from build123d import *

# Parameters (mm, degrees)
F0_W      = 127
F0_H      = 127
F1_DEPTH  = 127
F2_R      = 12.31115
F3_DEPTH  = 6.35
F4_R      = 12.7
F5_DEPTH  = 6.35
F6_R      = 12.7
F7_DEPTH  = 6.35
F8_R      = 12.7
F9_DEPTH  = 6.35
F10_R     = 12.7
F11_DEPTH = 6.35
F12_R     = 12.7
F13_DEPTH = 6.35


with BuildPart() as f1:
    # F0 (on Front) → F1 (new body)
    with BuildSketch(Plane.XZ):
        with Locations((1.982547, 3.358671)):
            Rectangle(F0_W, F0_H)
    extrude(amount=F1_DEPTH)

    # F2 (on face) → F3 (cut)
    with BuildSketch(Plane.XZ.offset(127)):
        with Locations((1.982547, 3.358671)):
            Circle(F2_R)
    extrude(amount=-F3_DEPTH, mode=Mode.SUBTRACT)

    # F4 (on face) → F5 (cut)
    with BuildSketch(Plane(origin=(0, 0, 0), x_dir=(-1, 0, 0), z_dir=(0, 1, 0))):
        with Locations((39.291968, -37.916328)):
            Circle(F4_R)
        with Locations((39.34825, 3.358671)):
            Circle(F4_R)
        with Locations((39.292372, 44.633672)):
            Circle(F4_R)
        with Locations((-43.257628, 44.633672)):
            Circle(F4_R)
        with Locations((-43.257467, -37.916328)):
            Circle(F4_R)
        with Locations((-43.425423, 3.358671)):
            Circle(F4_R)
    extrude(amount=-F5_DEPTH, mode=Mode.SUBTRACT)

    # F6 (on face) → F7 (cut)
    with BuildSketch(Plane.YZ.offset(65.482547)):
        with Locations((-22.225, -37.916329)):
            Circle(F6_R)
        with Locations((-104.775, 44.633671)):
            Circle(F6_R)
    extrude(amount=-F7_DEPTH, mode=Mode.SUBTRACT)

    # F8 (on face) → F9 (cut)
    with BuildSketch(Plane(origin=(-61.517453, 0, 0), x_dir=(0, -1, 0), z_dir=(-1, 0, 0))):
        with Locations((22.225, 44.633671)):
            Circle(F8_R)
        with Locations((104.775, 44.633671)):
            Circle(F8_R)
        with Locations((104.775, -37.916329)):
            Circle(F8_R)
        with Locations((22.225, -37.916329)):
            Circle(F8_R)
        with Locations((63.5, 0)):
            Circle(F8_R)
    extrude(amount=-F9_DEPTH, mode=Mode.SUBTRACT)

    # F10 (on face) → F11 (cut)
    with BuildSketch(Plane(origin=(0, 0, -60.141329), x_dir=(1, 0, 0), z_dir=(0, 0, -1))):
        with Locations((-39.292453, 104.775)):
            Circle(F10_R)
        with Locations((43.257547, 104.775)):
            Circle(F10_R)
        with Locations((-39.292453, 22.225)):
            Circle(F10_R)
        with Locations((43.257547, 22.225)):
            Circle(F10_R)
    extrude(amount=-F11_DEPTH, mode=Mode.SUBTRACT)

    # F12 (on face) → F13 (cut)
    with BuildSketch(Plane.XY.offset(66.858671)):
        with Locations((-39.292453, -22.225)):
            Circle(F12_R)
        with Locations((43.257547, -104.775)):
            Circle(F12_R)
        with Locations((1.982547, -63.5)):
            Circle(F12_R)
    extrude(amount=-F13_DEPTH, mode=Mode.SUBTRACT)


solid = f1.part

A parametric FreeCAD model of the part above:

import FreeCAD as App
import Part
import Sketcher
from FreeCAD import Vector
Q = App.Units.Quantity

doc = App.newDocument("Part")
body = doc.addObject("PartDesign::Body", "Body")

# Sketch on XZ plane
sketch1 = doc.addObject("Sketcher::SketchObject", "Sketch")
body.addObject(sketch1)
sketch1.AttachmentSupport = (doc.XZ_Plane, [""])
sketch1.MapMode = "FlatFace"
sketch1.addGeometry(Part.LineSegment(Vector(-61.517453, 66.858671, 0), Vector(-61.517453, -60.141329, 0)), False)
sketch1.addGeometry(Part.LineSegment(Vector(-61.517453, -60.141329, 0), Vector(65.482547, -60.141329, 0)), False)
sketch1.addGeometry(Part.LineSegment(Vector(65.482547, -60.141329, 0), Vector(65.482547, 66.858671, 0)), False)
sketch1.addGeometry(Part.LineSegment(Vector(65.482547, 66.858671, 0), Vector(-61.517453, 66.858671, 0)), False)
sketch1.addConstraint(Sketcher.Constraint("Coincident", 0, 2, 1, 1))
sketch1.addConstraint(Sketcher.Constraint("Coincident", 1, 2, 2, 1))
sketch1.addConstraint(Sketcher.Constraint("Coincident", 2, 2, 3, 1))
sketch1.addConstraint(Sketcher.Constraint("Coincident", 3, 2, 0, 1))
sketch1.addConstraint(Sketcher.Constraint("Vertical", 0))
sketch1.addConstraint(Sketcher.Constraint("Horizontal", 1))
sketch1.addConstraint(Sketcher.Constraint("Vertical", 2))
sketch1.addConstraint(Sketcher.Constraint("Horizontal", 3))
sketch1.addConstraint(Sketcher.Constraint("Equal", 3, 0))
sketch1.addConstraint(Sketcher.Constraint("DistanceX", 1, 1, 1, 2, Q("5 in")))
sketch1.addConstraint(Sketcher.Constraint("DistanceY", 0, 2, -1, 1, Q("60.141329 mm")))
sketch1.addConstraint(Sketcher.Constraint("DistanceX", 0, 2, -1, 1, Q("61.517453 mm")))
pad1 = doc.addObject("PartDesign::Pad", "Pad")
body.addObject(pad1)
pad1.Profile = sketch1
pad1.Length = Q("5 in")

# Sketch on XZ plane
sketch2 = doc.addObject("Sketcher::SketchObject", "Sketch001")
body.addObject(sketch2)
sketch2.AttachmentSupport = (doc.XZ_Plane, [""])
sketch2.MapMode = "FlatFace"
sketch2.AttachmentOffset = App.Placement(Vector(0, 0, 5 * 25.4), App.Rotation())
sketch2.addGeometry(Part.Circle(Vector(1.982547, 3.358671, 0), Vector(0, 0, 1), 12.31115), False)
sketch2.addConstraint(Sketcher.Constraint("Diameter", 0, Q("24.6223 mm")))
sketch2.addConstraint(Sketcher.Constraint("DistanceY", -1, 1, 0, 3, Q("3.358671 mm")))
sketch2.addConstraint(Sketcher.Constraint("DistanceX", -1, 1, 0, 3, Q("1.982547 mm")))
pocket1 = doc.addObject("PartDesign::Pocket", "Pocket")
body.addObject(pocket1)
pocket1.Profile = sketch2
pocket1.Length = Q("0.25 in")

# Sketch on XZ plane
sketch3 = doc.addObject("Sketcher::SketchObject", "Sketch002")
body.addObject(sketch3)
sketch3.AttachmentSupport = (doc.XZ_Plane, [""])
sketch3.MapMode = "FlatFace"
sketch3.addGeometry(Part.Circle(Vector(-39.291968, -37.916328, 0), Vector(0, 0, 1), 12.7), False)
sketch3.addGeometry(Part.Circle(Vector(-39.34825, 3.358671, 0), Vector(0, 0, 1), 12.7), False)
sketch3.addGeometry(Part.Circle(Vector(-39.292372, 44.633672, 0), Vector(0, 0, 1), 12.7), False)
sketch3.addGeometry(Part.Circle(Vector(43.257628, 44.633672, 0), Vector(0, 0, 1), 12.7), False)
sketch3.addGeometry(Part.Circle(Vector(43.257467, -37.916328, 0), Vector(0, 0, 1), 12.7), False)
sketch3.addGeometry(Part.Circle(Vector(43.425423, 3.358671, 0), Vector(0, 0, 1), 12.7), False)
sketch3.addConstraint(Sketcher.Constraint("Equal", 0, 1))
sketch3.addConstraint(Sketcher.Constraint("Equal", 1, 2))
sketch3.addConstraint(Sketcher.Constraint("Equal", 2, 3))
sketch3.addConstraint(Sketcher.Constraint("Equal", 3, 4))
sketch3.addConstraint(Sketcher.Constraint("Equal", 4, 5))
sketch3.addConstraint(Sketcher.Constraint("Horizontal", 2, 3, 3, 3))
sketch3.addConstraint(Sketcher.Constraint("Horizontal", 0, 3, 4, 3))
sketch3.addConstraint(Sketcher.Constraint("Horizontal", 1, 3, 5, 3))
sketch3.addConstraint(Sketcher.Constraint("Diameter", 0, Q("1 in")))
sketch3.addConstraint(Sketcher.Constraint("DistanceY", 0, 3, 2, 3, Q("3.25 in")))
sketch3.addConstraint(Sketcher.Constraint("DistanceX", 2, 3, 3, 3, Q("3.25 in")))
sketch3.addConstraint(Sketcher.Constraint("DistanceY", 0, 3, 1, 3, Q("1.625 in")))
sketch3.addConstraint(Sketcher.Constraint("DistanceX", 1, 3, 2, 3, Q("0.0021999 in")))
sketch3.addConstraint(Sketcher.Constraint("DistanceX", 1, 3, -1, 1, Q("39.34825 mm")))
sketch3.addConstraint(Sketcher.Constraint("DistanceY", -1, 1, 1, 3, Q("3.358671 mm")))
sketch3.addConstraint(Sketcher.Constraint("DistanceX", 4, 3, 3, 3, Q("0.000161 mm")))
sketch3.addConstraint(Sketcher.Constraint("DistanceX", 0, 3, 5, 3, Q("82.717391 mm")))
sketch3.addConstraint(Sketcher.Constraint("DistanceX", 0, 3, -1, 1, Q("39.291968 mm")))
pocket2 = doc.addObject("PartDesign::Pocket", "Pocket001")
body.addObject(pocket2)
pocket2.Profile = sketch3
pocket2.Length = Q("0.25 in")
pocket2.Reversed = True

# Sketch on YZ plane
sketch4 = doc.addObject("Sketcher::SketchObject", "Sketch003")
body.addObject(sketch4)
sketch4.AttachmentSupport = (doc.YZ_Plane, [""])
sketch4.MapMode = "FlatFace"
sketch4.AttachmentOffset = App.Placement(Vector(0, 0, 65.482547), App.Rotation())
sketch4.addGeometry(Part.Circle(Vector(-22.225, -37.916329, 0), Vector(0, 0, 1), 12.7), False)
sketch4.addGeometry(Part.Circle(Vector(-104.775, 44.633671, 0), Vector(0, 0, 1), 12.7), False)
sketch4.addConstraint(Sketcher.Constraint("Equal", 0, 1))
sketch4.addConstraint(Sketcher.Constraint("Diameter", 0, Q("1 in")))
sketch4.addConstraint(Sketcher.Constraint("DistanceX", 1, 3, 0, 3, Q("3.25 in")))
sketch4.addConstraint(Sketcher.Constraint("DistanceY", 0, 3, 1, 3, Q("3.25 in")))
sketch4.addConstraint(Sketcher.Constraint("DistanceX", 0, 3, -1, 1, Q("0.875 in")))
sketch4.addConstraint(Sketcher.Constraint("DistanceY", 0, 3, -1, 1, Q("37.916329 mm")))
pocket3 = doc.addObject("PartDesign::Pocket", "Pocket002")
body.addObject(pocket3)
pocket3.Profile = sketch4
pocket3.Length = Q("0.25 in")

# Sketch on YZ plane
sketch5 = doc.addObject("Sketcher::SketchObject", "Sketch004")
body.addObject(sketch5)
sketch5.AttachmentSupport = (doc.YZ_Plane, [""])
sketch5.MapMode = "FlatFace"
sketch5.AttachmentOffset = App.Placement(Vector(0, 0, -61.517453), App.Rotation())
sketch5.addGeometry(Part.Circle(Vector(-22.225, 44.633671, 0), Vector(0, 0, 1), 12.7), False)
sketch5.addGeometry(Part.Circle(Vector(-104.775, 44.633671, 0), Vector(0, 0, 1), 12.7), False)
sketch5.addGeometry(Part.Circle(Vector(-104.775, -37.916329, 0), Vector(0, 0, 1), 12.7), False)
sketch5.addGeometry(Part.Circle(Vector(-22.225, -37.916329, 0), Vector(0, 0, 1), 12.7), False)
sketch5.addGeometry(Part.Circle(Vector(-63.5, 0, 0), Vector(0, 0, 1), 12.7), False)
sketch5.addConstraint(Sketcher.Constraint("Equal", 0, 1))
sketch5.addConstraint(Sketcher.Constraint("Equal", 1, 2))
sketch5.addConstraint(Sketcher.Constraint("Equal", 2, 3))
sketch5.addConstraint(Sketcher.Constraint("Equal", 3, 4))
sketch5.addConstraint(Sketcher.Constraint("PointOnObject", 4, 3, -1))
sketch5.addConstraint(Sketcher.Constraint("Horizontal", 0, 3, 1, 3))
sketch5.addConstraint(Sketcher.Constraint("Horizontal", 2, 3, 3, 3))
sketch5.addConstraint(Sketcher.Constraint("Vertical", 1, 3, 2, 3))
sketch5.addConstraint(Sketcher.Constraint("Vertical", 0, 3, 3, 3))
sketch5.addConstraint(Sketcher.Constraint("Diameter", 0, Q("1 in")))
sketch5.addConstraint(Sketcher.Constraint("DistanceX", 4, 3, -1, 1, Q("2.5 in")))
sketch5.addConstraint(Sketcher.Constraint("DistanceX", 1, 3, 0, 3, Q("3.25 in")))
sketch5.addConstraint(Sketcher.Constraint("DistanceY", 2, 3, 1, 3, Q("3.25 in")))
sketch5.addConstraint(Sketcher.Constraint("DistanceX", 0, 3, -1, 1, Q("0.875 in")))
sketch5.addConstraint(Sketcher.Constraint("DistanceY", -1, 1, 0, 3, Q("44.633671 mm")))
pocket4 = doc.addObject("PartDesign::Pocket", "Pocket003")
body.addObject(pocket4)
pocket4.Profile = sketch5
pocket4.Length = Q("0.25 in")
pocket4.Reversed = True

# Sketch on XY plane
sketch6 = doc.addObject("Sketcher::SketchObject", "Sketch005")
body.addObject(sketch6)
sketch6.AttachmentSupport = (doc.XY_Plane, [""])
sketch6.MapMode = "FlatFace"
sketch6.AttachmentOffset = App.Placement(Vector(0, 0, -60.141329), App.Rotation())
sketch6.addGeometry(Part.Circle(Vector(-39.292453, -104.775, 0), Vector(0, 0, 1), 12.7), False)
sketch6.addGeometry(Part.Circle(Vector(43.257547, -104.775, 0), Vector(0, 0, 1), 12.7), False)
sketch6.addGeometry(Part.Circle(Vector(-39.292453, -22.225, 0), Vector(0, 0, 1), 12.7), False)
sketch6.addGeometry(Part.Circle(Vector(43.257547, -22.225, 0), Vector(0, 0, 1), 12.7), False)
sketch6.addConstraint(Sketcher.Constraint("Equal", 0, 1))
sketch6.addConstraint(Sketcher.Constraint("Equal", 1, 2))
sketch6.addConstraint(Sketcher.Constraint("Equal", 2, 3))
sketch6.addConstraint(Sketcher.Constraint("Horizontal", 0, 3, 1, 3))
sketch6.addConstraint(Sketcher.Constraint("Horizontal", 2, 3, 3, 3))
sketch6.addConstraint(Sketcher.Constraint("Vertical", 0, 3, 2, 3))
sketch6.addConstraint(Sketcher.Constraint("Vertical", 1, 3, 3, 3))
sketch6.addConstraint(Sketcher.Constraint("Diameter", 0, Q("1 in")))
sketch6.addConstraint(Sketcher.Constraint("DistanceX", 0, 3, 1, 3, Q("3.25 in")))
sketch6.addConstraint(Sketcher.Constraint("DistanceY", 0, 3, 2, 3, Q("3.25 in")))
sketch6.addConstraint(Sketcher.Constraint("DistanceY", 0, 3, -1, 1, Q("4.125 in")))
sketch6.addConstraint(Sketcher.Constraint("DistanceX", 0, 3, -1, 1, Q("39.292453 mm")))
pocket5 = doc.addObject("PartDesign::Pocket", "Pocket004")
body.addObject(pocket5)
pocket5.Profile = sketch6
pocket5.Length = Q("0.25 in")
pocket5.Reversed = True

# Sketch on XY plane
sketch7 = doc.addObject("Sketcher::SketchObject", "Sketch006")
body.addObject(sketch7)
sketch7.AttachmentSupport = (doc.XY_Plane, [""])
sketch7.MapMode = "FlatFace"
sketch7.AttachmentOffset = App.Placement(Vector(0, 0, 66.858671), App.Rotation())
sketch7.addGeometry(Part.Circle(Vector(-39.292453, -22.225, 0), Vector(0, 0, 1), 12.7), False)
sketch7.addGeometry(Part.Circle(Vector(43.257547, -104.775, 0), Vector(0, 0, 1), 12.7), False)
sketch7.addGeometry(Part.Circle(Vector(1.982547, -63.5, 0), Vector(0, 0, 1), 12.7), False)
sketch7.addConstraint(Sketcher.Constraint("Equal", 0, 1))
sketch7.addConstraint(Sketcher.Constraint("Equal", 1, 2))
sketch7.addConstraint(Sketcher.Constraint("Diameter", 0, Q("1 in")))
sketch7.addConstraint(Sketcher.Constraint("DistanceY", 2, 3, -1, 1, Q("2.5 in")))
sketch7.addConstraint(Sketcher.Constraint("DistanceX", 0, 3, 1, 3, Q("3.25 in")))
sketch7.addConstraint(Sketcher.Constraint("DistanceY", 1, 3, 0, 3, Q("3.25 in")))
sketch7.addConstraint(Sketcher.Constraint("DistanceY", 0, 3, -1, 1, Q("0.875 in")))
sketch7.addConstraint(Sketcher.Constraint("DistanceX", 0, 3, 2, 3, Q("1.625 in")))
sketch7.addConstraint(Sketcher.Constraint("DistanceX", 0, 3, -1, 1, Q("39.292453 mm")))
pocket6 = doc.addObject("PartDesign::Pocket", "Pocket005")
body.addObject(pocket6)
pocket6.Profile = sketch7
pocket6.Length = Q("0.25 in")

doc.recompute()
